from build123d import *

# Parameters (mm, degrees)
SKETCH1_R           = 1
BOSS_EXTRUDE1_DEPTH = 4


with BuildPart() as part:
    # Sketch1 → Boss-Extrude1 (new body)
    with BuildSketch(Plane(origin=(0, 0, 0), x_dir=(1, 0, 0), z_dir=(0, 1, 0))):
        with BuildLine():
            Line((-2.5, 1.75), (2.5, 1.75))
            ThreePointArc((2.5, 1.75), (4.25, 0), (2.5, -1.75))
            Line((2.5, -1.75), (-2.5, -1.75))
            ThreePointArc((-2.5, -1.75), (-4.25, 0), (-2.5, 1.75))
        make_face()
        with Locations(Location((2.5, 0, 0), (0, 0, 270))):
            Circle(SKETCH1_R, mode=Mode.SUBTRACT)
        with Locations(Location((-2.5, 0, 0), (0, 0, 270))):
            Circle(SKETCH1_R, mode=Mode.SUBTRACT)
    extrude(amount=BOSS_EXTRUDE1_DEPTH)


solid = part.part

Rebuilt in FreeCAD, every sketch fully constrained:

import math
import FreeCAD as App
import Part
import Sketcher

doc = App.newDocument("Part")
body = doc.addObject("PartDesign::Body", "Body")

sketch1 = body.newObject("Sketcher::SketchObject", "Sketch")
sketch1.AttachmentSupport = (doc.getObject("XZ_Plane"), [""])
sketch1.MapMode = "FlatFace"
sketch1.addGeometry([
    Part.LineSegment(App.Vector(2.5, -1.8, 0), App.Vector(-2.5, -1.8, 0)),
    Part.ArcOfCircle(Part.Circle(App.Vector(-2.5, 0, 0), App.Vector(0, 0, 1), 1.8), math.radians(90), math.radians(270)),
    Part.LineSegment(App.Vector(-2.5, 1.8, 0), App.Vector(2.5, 1.8, 0)),
    Part.ArcOfCircle(Part.Circle(App.Vector(2.5, 0, 0), App.Vector(0, 0, 1), 1.8), math.radians(-90), math.radians(90)),
    Part.Circle(App.Vector(2.5, 0, 0), App.Vector(0, 0, 1), 1),
    Part.Circle(App.Vector(-2.5, 0, 0), App.Vector(0, 0, 1), 1),
], False)
sketch1.addConstraint([
    Sketcher.Constraint("Tangent", 0, 2, 1, 2),
    Sketcher.Constraint("Tangent", 1, 1, 2, 1),
    Sketcher.Constraint("Tangent", 2, 2, 3, 2),
    Sketcher.Constraint("Tangent", 3, 1, 0, 1),
    Sketcher.Constraint("Horizontal", 0),
    Sketcher.Constraint("Horizontal", 2),
    Sketcher.Constraint("Coincident", 4, 3, 3, 3),
    Sketcher.Constraint("Coincident", 5, 3, 1, 3),
    Sketcher.Constraint("Equal", 4, 5),
    Sketcher.Constraint("Symmetric", 1, 3, 3, 3, -1, 1),
    Sketcher.Constraint("Diameter", 4, 2.0),
    Sketcher.Constraint("DistanceX", 0, 2, 0, 1, 5.0),
    Sketcher.Constraint("Radius", 1, 1.75),
])
pad1 = body.newObject("PartDesign::Pad", "Pad")
pad1.Profile = sketch1
pad1.Length = 4
pad1.Reversed = True

doc.recompute()
